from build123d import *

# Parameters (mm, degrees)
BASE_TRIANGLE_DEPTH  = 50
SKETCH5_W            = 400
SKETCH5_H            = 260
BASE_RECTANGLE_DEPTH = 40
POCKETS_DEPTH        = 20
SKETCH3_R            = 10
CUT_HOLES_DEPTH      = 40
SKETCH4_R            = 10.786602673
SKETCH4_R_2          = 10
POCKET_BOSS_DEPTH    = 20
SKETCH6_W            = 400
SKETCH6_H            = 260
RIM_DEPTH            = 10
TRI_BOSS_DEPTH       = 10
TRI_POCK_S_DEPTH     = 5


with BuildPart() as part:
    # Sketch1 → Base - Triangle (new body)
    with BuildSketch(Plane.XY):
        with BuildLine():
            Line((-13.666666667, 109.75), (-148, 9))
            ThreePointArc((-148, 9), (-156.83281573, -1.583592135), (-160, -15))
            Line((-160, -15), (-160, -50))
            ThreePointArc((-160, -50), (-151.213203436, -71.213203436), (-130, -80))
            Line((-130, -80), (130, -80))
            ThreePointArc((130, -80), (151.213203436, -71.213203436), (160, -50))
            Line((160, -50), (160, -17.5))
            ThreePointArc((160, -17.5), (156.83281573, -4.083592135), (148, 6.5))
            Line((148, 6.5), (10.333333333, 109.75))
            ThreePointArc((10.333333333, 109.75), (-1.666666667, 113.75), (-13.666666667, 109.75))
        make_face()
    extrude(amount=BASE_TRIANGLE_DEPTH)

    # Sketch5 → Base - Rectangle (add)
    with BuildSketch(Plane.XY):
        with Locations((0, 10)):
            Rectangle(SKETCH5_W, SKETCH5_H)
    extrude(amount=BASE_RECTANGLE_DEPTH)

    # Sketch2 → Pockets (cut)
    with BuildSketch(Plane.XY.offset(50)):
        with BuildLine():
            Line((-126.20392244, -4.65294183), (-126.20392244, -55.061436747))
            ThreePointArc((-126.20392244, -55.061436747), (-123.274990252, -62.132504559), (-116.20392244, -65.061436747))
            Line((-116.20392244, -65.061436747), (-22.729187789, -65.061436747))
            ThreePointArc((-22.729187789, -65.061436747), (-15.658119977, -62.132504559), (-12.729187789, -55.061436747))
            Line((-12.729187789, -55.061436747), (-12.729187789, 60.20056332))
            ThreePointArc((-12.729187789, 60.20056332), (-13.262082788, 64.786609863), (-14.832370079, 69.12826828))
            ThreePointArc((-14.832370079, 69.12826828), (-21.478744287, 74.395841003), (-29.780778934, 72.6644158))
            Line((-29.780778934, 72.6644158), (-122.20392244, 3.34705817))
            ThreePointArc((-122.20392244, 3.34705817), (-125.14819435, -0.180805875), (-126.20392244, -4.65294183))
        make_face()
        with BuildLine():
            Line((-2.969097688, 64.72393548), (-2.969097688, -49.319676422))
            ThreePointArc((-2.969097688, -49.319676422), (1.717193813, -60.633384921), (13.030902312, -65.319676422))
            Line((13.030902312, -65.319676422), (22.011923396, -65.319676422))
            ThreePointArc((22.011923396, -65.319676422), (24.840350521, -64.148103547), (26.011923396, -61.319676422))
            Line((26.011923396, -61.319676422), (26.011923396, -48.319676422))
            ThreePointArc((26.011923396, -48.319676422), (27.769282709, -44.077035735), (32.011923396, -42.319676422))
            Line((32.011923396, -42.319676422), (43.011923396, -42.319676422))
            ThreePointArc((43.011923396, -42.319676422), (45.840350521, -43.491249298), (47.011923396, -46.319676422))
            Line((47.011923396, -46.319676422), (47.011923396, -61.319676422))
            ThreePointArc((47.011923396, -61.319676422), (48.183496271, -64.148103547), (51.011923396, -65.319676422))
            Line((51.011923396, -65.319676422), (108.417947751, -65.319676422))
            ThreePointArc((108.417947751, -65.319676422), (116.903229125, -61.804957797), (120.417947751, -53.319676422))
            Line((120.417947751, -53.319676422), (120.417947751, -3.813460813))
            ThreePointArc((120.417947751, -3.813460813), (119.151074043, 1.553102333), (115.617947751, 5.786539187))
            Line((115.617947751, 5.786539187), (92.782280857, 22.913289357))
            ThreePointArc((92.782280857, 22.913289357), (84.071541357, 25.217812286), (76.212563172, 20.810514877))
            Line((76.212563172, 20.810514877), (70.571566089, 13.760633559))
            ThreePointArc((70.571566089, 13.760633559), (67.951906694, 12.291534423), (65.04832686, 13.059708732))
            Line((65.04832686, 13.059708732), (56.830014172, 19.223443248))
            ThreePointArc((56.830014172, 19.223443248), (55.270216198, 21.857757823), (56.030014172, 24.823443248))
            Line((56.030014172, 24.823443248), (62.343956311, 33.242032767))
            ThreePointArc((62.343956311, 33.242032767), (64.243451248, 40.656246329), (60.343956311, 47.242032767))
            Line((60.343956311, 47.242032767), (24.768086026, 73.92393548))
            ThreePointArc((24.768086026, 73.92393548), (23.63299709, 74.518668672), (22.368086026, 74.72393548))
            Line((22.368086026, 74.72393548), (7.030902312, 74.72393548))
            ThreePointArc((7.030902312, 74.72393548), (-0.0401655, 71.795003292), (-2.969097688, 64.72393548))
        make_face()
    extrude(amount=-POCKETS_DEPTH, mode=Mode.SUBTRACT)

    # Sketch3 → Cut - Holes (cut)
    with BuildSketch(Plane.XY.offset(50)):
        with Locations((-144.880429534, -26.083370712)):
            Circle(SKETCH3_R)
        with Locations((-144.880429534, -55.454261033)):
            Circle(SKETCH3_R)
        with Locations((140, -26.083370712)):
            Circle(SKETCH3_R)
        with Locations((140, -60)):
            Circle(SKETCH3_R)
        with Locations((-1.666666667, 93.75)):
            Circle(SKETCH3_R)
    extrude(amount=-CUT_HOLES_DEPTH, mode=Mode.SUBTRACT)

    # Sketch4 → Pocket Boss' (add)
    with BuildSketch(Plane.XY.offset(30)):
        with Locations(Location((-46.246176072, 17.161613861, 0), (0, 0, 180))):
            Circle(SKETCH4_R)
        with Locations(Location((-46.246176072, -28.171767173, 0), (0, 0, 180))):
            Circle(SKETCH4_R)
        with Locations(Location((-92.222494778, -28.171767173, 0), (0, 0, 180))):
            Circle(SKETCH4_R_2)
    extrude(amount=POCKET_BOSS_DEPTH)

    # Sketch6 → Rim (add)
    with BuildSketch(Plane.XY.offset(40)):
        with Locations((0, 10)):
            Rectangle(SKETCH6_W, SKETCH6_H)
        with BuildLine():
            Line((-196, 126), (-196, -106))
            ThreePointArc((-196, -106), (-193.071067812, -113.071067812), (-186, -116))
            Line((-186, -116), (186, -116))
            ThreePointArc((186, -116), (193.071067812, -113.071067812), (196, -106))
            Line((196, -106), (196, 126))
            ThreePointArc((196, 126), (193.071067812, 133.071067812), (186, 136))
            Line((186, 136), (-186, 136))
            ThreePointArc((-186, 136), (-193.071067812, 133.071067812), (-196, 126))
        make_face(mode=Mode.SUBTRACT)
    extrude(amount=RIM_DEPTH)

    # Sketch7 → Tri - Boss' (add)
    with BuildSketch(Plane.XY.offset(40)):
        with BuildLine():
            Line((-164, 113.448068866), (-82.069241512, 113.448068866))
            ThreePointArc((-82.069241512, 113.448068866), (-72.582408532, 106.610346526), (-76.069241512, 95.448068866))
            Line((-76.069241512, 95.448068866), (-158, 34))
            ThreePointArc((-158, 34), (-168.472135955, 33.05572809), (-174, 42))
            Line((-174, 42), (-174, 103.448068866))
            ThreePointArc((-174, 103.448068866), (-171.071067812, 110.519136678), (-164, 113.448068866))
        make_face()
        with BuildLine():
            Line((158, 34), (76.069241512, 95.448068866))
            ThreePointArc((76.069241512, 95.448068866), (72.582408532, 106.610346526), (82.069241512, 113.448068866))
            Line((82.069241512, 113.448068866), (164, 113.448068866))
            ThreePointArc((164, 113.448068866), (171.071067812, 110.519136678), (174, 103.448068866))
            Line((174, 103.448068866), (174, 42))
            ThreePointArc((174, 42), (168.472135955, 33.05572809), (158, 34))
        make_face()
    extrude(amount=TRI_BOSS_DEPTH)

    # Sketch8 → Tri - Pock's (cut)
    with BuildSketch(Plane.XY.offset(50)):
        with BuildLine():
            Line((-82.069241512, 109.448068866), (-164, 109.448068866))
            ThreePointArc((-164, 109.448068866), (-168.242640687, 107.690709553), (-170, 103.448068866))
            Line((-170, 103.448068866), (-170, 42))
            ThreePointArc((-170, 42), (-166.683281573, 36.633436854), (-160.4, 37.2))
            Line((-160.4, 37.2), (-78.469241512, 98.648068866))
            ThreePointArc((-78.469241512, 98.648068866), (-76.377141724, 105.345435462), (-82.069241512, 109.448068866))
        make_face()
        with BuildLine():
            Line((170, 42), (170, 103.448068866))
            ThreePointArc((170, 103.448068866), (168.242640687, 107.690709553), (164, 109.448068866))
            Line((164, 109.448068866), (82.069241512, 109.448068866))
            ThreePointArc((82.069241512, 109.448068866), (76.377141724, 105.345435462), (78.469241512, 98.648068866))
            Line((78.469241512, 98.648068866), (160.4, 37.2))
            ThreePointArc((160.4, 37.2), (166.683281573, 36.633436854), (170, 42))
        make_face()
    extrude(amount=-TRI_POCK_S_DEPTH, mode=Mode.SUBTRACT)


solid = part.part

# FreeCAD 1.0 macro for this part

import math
import FreeCAD as App
import Part
import Sketcher

V = App.Vector
Q = App.Units.Quantity


def add_polygon(sketch, points):
    """Adds a closed chain of lines whose ends are joined by coincident constraints."""
    first, n = sketch.GeometryCount, len(points)
    for a, b in zip(points, points[1:] + points[:1]):
        sketch.addGeometry(Part.LineSegment(App.Vector(*a, 0), App.Vector(*b, 0)), False)
    for i in range(n):
        sketch.addConstraint(Sketcher.Constraint("Coincident", first + i, 2, first + (i + 1) % n, 1))

doc = App.newDocument("Part")
params = doc.addObject("Spreadsheet::Sheet", "Params")
for row, (alias, value) in enumerate([
    ("sketch1_radius", "30 mm"),
    ("sketch1_radius2", "20 mm"),
    ("sketch1_width", "260 mm"),
    ("sketch1_height", "35 mm"),
    ("sketch1_height2", "32.5 mm"),
    ("pad1_length", "50 mm"),
    ("sketch2_width", "400 mm"),
    ("sketch2_height", "260 mm"),
    ("pad2_length", "40 mm"),
    ("sketch3_radius", "10 mm"),
    ("sketch3_radius2", "20 mm"),
    ("sketch3_radius3", "16 mm"),
    ("sketch3_radius4", "4 mm"),
    ("sketch3_radius5", "6 mm"),
    ("pocket1_length", "20 mm"),
    ("sketch4_diameter", "20 mm"),
    ("pocket2_length", "40 mm"),
    ("sketch5_diameter", "20 mm"),
    ("pad3_length", "20 mm"),
    ("sketch6_radius", "10 mm"),
    ("sketch6_width", "400 mm"),
    ("sketch6_width2", "372 mm"),
    ("sketch6_height", "260 mm"),
    ("sketch6_height2", "232 mm"),
    ("pad4_length", "10 mm"),
    ("sketch7_radius", "10 mm"),
    ("pad5_length", "10 mm"),
    ("sketch8_radius", "6 mm"),
    ("pocket3_length", "5 mm"),
], start=1):
    params.set(f"A{row}", alias)
    params.set(f"B{row}", "=" + value)
    params.setAlias(f"B{row}", alias)

body = doc.addObject("PartDesign::Body", "Body")

sketch1 = body.newObject("Sketcher::SketchObject", "Sketch")
sketch1.AttachmentSupport = (doc.getObject("XY_Plane"), [""])
sketch1.MapMode = "FlatFace"
sketch1.addGeometry(Part.LineSegment(V(-14, 110, 0), V(-148, 9, 0)), False)
sketch1.addGeometry(Part.ArcOfCircle(Part.Circle(V(-130, -15, 0), V(0, 0, 1), 30), math.radians(127), math.radians(180)), False)
sketch1.addGeometry(Part.LineSegment(V(-160, -15, 0), V(-160, -50, 0)), False)
sketch1.addGeometry(Part.ArcOfCircle(Part.Circle(V(-130, -50, 0), V(0, 0, 1), 30), math.radians(180), math.radians(270)), False)
sketch1.addGeometry(Part.LineSegment(V(-130, -80, 0), V(130, -80, 0)), False)
sketch1.addGeometry(Part.ArcOfCircle(Part.Circle(V(130, -50, 0), V(0, 0, 1), 30), math.radians(-90), math.radians(0)), False)
sketch1.addGeometry(Part.LineSegment(V(160, -50, 0), V(160, -18, 0)), False)
sketch1.addGeometry(Part.ArcOfCircle(Part.Circle(V(130, -18, 0), V(0, 0, 1), 30), math.radians(0), math.radians(53)), False)
sketch1.addGeometry(Part.LineSegment(V(148, 6, 0), V(10, 110, 0)), False)
sketch1.addGeometry(Part.ArcOfCircle(Part.Circle(V(-2, 94, 0), V(0, 0, 1), 20), math.radians(53), math.radians(127)), False)
sketch1.addConstraint(Sketcher.Constraint("Tangent", 0, 2, 1, 1))
sketch1.addConstraint(Sketcher.Constraint("Tangent", 1, 2, 2, 1))
sketch1.addConstraint(Sketcher.Constraint("Tangent", 2, 2, 3, 1))
sketch1.addConstraint(Sketcher.Constraint("Tangent", 3, 2, 4, 1))
sketch1.addConstraint(Sketcher.Constraint("Tangent", 4, 2, 5, 1))
sketch1.addConstraint(Sketcher.Constraint("Tangent", 5, 2, 6, 1))
sketch1.addConstraint(Sketcher.Constraint("Tangent", 6, 2, 7, 1))
sketch1.addConstraint(Sketcher.Constraint("Tangent", 7, 2, 8, 1))
sketch1.addConstraint(Sketcher.Constraint("Tangent", 8, 2, 9, 1))
sketch1.addConstraint(Sketcher.Constraint("Tangent", 9, 2, 0, 1))
sketch1.addConstraint(Sketcher.Constraint("Vertical", 2))
sketch1.addConstraint(Sketcher.Constraint("Horizontal", 4))
sketch1.addConstraint(Sketcher.Constraint("Vertical", 6))
sketch1.addConstraint(Sketcher.Constraint("Equal", 1, 3))
sketch1.addConstraint(Sketcher.Constraint("Equal", 3, 5))
sketch1.addConstraint(Sketcher.Constraint("Equal", 5, 7))
sketch1.addConstraint(Sketcher.Constraint("Horizontal", 8, 2, 9, 2))
sketch1.addConstraint(Sketcher.Constraint("Radius", 1, Q("30 mm")))
sketch1.addConstraint(Sketcher.Constraint("Radius", 9, Q("20 mm")))
sketch1.addConstraint(Sketcher.Constraint("DistanceX", 4, 1, 4, 2, Q("260 mm")))
sketch1.addConstraint(Sketcher.Constraint("DistanceY", 2, 2, 2, 1, Q("35 mm")))
sketch1.addConstraint(Sketcher.Constraint("DistanceY", 6, 1, 6, 2, Q("32.5 mm")))
sketch1.addConstraint(Sketcher.Constraint("DistanceX", 1, 3, -1, 1, Q("130 mm")))
sketch1.addConstraint(Sketcher.Constraint("DistanceY", 1, 3, -1, 1, Q("15 mm")))
sketch1.addConstraint(Sketcher.Constraint("DistanceX", 0, 2, -1, 1, Q("148 mm")))
sketch1.setExpression("Constraints[17]", "Params.sketch1_radius")
sketch1.setExpression("Constraints[18]", "Params.sketch1_radius2")
sketch1.setExpression("Constraints[19]", "Params.sketch1_width")
sketch1.setExpression("Constraints[20]", "Params.sketch1_height")
sketch1.setExpression("Constraints[21]", "Params.sketch1_height2")
pad1 = body.newObject("PartDesign::Pad", "Pad")
pad1.Profile = sketch1
pad1.setExpression("Length", "Params.pad1_length")

sketch2 = body.newObject("Sketcher::SketchObject", "Sketch001")
sketch2.AttachmentSupport = (doc.getObject("XY_Plane"), [""])
sketch2.MapMode = "FlatFace"
add_polygon(sketch2, [(-200, 140), (-200, -120), (200, -120), (200, 140)])
sketch2.addConstraint(Sketcher.Constraint("Vertical", 0))
sketch2.addConstraint(Sketcher.Constraint("Horizontal", 1))
sketch2.addConstraint(Sketcher.Constraint("Vertical", 2))
sketch2.addConstraint(Sketcher.Constraint("Horizontal", 3))
sketch2.addConstraint(Sketcher.Constraint("DistanceX", 1, 1, 1, 2, Q("400 mm")))
sketch2.addConstraint(Sketcher.Constraint("DistanceY", 0, 2, 0, 1, Q("260 mm")))
sketch2.addConstraint(Sketcher.Constraint("DistanceX", 0, 2, -1, 1, Q("200 mm")))
sketch2.addConstraint(Sketcher.Constraint("DistanceY", 0, 2, -1, 1, Q("120 mm")))
sketch2.setExpression("Constraints[8]", "Params.sketch2_width")
sketch2.setExpression("Constraints[9]", "Params.sketch2_height")
pad2 = body.newObject("PartDesign::Pad", "Pad001")
pad2.Profile = sketch2
pad2.setExpression("Length", "Params.pad2_length")

sketch3 = body.newObject("Sketcher::SketchObject", "Sketch002")
sketch3.AttachmentSupport = (doc.getObject("XY_Plane"), [""])
sketch3.MapMode = "FlatFace"
sketch3.AttachmentOffset = App.Placement(V(0, 0, 50), App.Rotation())
sketch3.addGeometry(Part.LineSegment(V(-126.2, -4.7, 0), V(-126.2, -55.1, 0)), False)
sketch3.addGeometry(Part.ArcOfCircle(Part.Circle(V(-116.2, -55.1, 0), V(0, 0, 1), 10), math.radians(180), math.radians(270)), False)
sketch3.addGeometry(Part.LineSegment(V(-116.2, -65.1, 0), V(-22.7, -65.1, 0)), False)
sketch3.addGeometry(Part.ArcOfCircle(Part.Circle(V(-22.7, -55.1, 0), V(0, 0, 1), 10), math.radians(-90), math.radians(0)), False)
sketch3.addGeometry(Part.LineSegment(V(-12.7, -55.1, 0), V(-12.7, 60.2, 0)), False)
sketch3.addGeometry(Part.ArcOfCircle(Part.Circle(V(-32.7, 60.2, 0), V(0, 0, 1), 20), math.radians(0), math.radians(27)), False)
sketch3.addGeometry(Part.ArcOfCircle(Part.Circle(V(-23.8, 64.7, 0), V(0, 0, 1), 10), math.radians(27), math.radians(127)), False)
sketch3.addGeometry(Part.LineSegment(V(-29.8, 72.7, 0), V(-122.2, 3.3, 0)), False)
sketch3.addGeometry(Part.ArcOfCircle(Part.Circle(V(-116.2, -4.7, 0), V(0, 0, 1), 10), math.radians(127), math.radians(180)), False)
sketch3.addGeometry(Part.LineSegment(V(-3, 64.7, 0), V(-3, -49.3, 0)), False)
sketch3.addGeometry(Part.ArcOfCircle(Part.Circle(V(13, -49.3, 0), V(0, 0, 1), 16), math.radians(180), math.radians(270)), False)
sketch3.addGeometry(Part.LineSegment(V(13, -65.3, 0), V(22, -65.3, 0)), False)
sketch3.addGeometry(Part.ArcOfCircle(Part.Circle(V(22, -61.3, 0), V(0, 0, 1), 4), math.radians(-90), math.radians(0)), False)
sketch3.addGeometry(Part.LineSegment(V(26, -61.3, 0), V(26, -48.3, 0)), False)
sketch3.addGeometry(Part.ArcOfCircle(Part.Circle(V(32, -48.3, 0), V(0, 0, 1), 6), math.radians(90), math.radians(180)), False)
sketch3.addGeometry(Part.LineSegment(V(32, -42.3, 0), V(43, -42.3, 0)), False)
sketch3.addGeometry(Part.ArcOfCircle(Part.Circle(V(43, -46.3, 0), V(0, 0, 1), 4), math.radians(0), math.radians(90)), False)
sketch3.addGeometry(Part.LineSegment(V(47, -46.3, 0), V(47, -61.3, 0)), False)
sketch3.addGeometry(Part.ArcOfCircle(Part.Circle(V(51, -61.3, 0), V(0, 0, 1), 4), math.radians(180), math.radians(270)), False)
sketch3.addGeometry(Part.LineSegment(V(51, -65.3, 0), V(108.4, -65.3, 0)), False)
sketch3.addGeometry(Part.ArcOfCircle(Part.Circle(V(108.4, -53.3, 0), V(0, 0, 1), 12), math.radians(-90), math.radians(0)), False)
sketch3.addGeometry(Part.LineSegment(V(120.4, -53.3, 0), V(120.4, -3.8, 0)), False)
sketch3.addGeometry(Part.ArcOfCircle(Part.Circle(V(108.4, -3.8, 0), V(0, 0, 1), 12), math.radians(0), math.radians(53)), False)
sketch3.addGeometry(Part.LineSegment(V(115.6, 5.8, 0), V(92.8, 22.9, 0)), False)
sketch3.addGeometry(Part.ArcOfCircle(Part.Circle(V(85.6, 13.3, 0), V(0, 0, 1), 12), math.radians(53), math.radians(141)), False)
sketch3.addGeometry(Part.LineSegment(V(76.2, 20.8, 0), V(70.6, 13.8, 0)), False)
sketch3.addGeometry(Part.ArcOfCircle(Part.Circle(V(67.4, 16.3, 0), V(0, 0, 1), 4), math.radians(-127), math.radians(-39)), False)
sketch3.addGeometry(Part.LineSegment(V(65, 13.1, 0), V(56.8, 19.2, 0)), False)
sketch3.addGeometry(Part.ArcOfCircle(Part.Circle(V(59.2, 22.4, 0), V(0, 0, 1), 4), math.radians(143), math.radians(233)), False)
sketch3.addGeometry(Part.LineSegment(V(56, 24.8, 0), V(62.3, 33.2, 0)), False)
sketch3.addGeometry(Part.ArcOfCircle(Part.Circle(V(54.3, 39.2, 0), V(0, 0, 1), 10), math.radians(-37), math.radians(53)), False)
sketch3.addGeometry(Part.LineSegment(V(60.3, 47.2, 0), V(24.8, 73.9, 0)), False)
sketch3.addGeometry(Part.ArcOfCircle(Part.Circle(V(22.4, 70.7, 0), V(0, 0, 1), 4), math.radians(53), math.radians(90)), False)
sketch3.addGeometry(Part.LineSegment(V(22.4, 74.7, 0), V(7, 74.7, 0)), False)
sketch3.addGeometry(Part.ArcOfCircle(Part.Circle(V(7, 64.7, 0), V(0, 0, 1), 10), math.radians(90), math.radians(180)), False)
sketch3.addConstraint(Sketcher.Constraint("Tangent", 0, 2, 1, 1))
sketch3.addConstraint(Sketcher.Constraint("Tangent", 1, 2, 2, 1))
sketch3.addConstraint(Sketcher.Constraint("Tangent", 2, 2, 3, 1))
sketch3.addConstraint(Sketcher.Constraint("Tangent", 3, 2, 4, 1))
sketch3.addConstraint(Sketcher.Constraint("Tangent", 4, 2, 5, 1))
sketch3.addConstraint(Sketcher.Constraint("Tangent", 5, 2, 6, 1))
sketch3.addConstraint(Sketcher.Constraint("Tangent", 6, 2, 7, 1))
sketch3.addConstraint(Sketcher.Constraint("Tangent", 7, 2, 8, 1))
sketch3.addConstraint(Sketcher.Constraint("Tangent", 8, 2, 0, 1))
sketch3.addConstraint(Sketcher.Constraint("Tangent", 9, 2, 10, 1))
sketch3.addConstraint(Sketcher.Constraint("Tangent", 10, 2, 11, 1))
sketch3.addConstraint(Sketcher.Constraint("Tangent", 11, 2, 12, 1))
sketch3.addConstraint(Sketcher.Constraint("Tangent", 12, 2, 13, 1))
sketch3.addConstraint(Sketcher.Constraint("Tangent", 13, 2, 14, 2))
sketch3.addConstraint(Sketcher.Constraint("Tangent", 14, 1, 15, 1))
sketch3.addConstraint(Sketcher.Constraint("Tangent", 15, 2, 16, 2))
sketch3.addConstraint(Sketcher.Constraint("Tangent", 16, 1, 17, 1))
sketch3.addConstraint(Sketcher.Constraint("Tangent", 17, 2, 18, 1))
sketch3.addConstraint(Sketcher.Constraint("Tangent", 18, 2, 19, 1))
sketch3.addConstraint(Sketcher.Constraint("Tangent", 19, 2, 20, 1))
sketch3.addConstraint(Sketcher.Constraint("Tangent", 20, 2, 21, 1))
sketch3.addConstraint(Sketcher.Constraint("Tangent", 21, 2, 22, 1))
sketch3.addConstraint(Sketcher.Constraint("Tangent", 22, 2, 23, 1))
sketch3.addConstraint(Sketcher.Constraint("Tangent", 23, 2, 24, 1))
sketch3.addConstraint(Sketcher.Constraint("Tangent", 24, 2, 25, 1))
sketch3.addConstraint(Sketcher.Constraint("Tangent", 25, 2, 26, 2))
sketch3.addConstraint(Sketcher.Constraint("Tangent", 26, 1, 27, 1))
sketch3.addConstraint(Sketcher.Constraint("Tangent", 27, 2, 28, 2))
sketch3.addConstraint(Sketcher.Constraint("Tangent", 28, 1, 29, 1))
sketch3.addConstraint(Sketcher.Constraint("Tangent", 29, 2, 30, 1))
sketch3.addConstraint(Sketcher.Constraint("Tangent", 30, 2, 31, 1))
sketch3.addConstraint(Sketcher.Constraint("Tangent", 31, 2, 32, 1))
sketch3.addConstraint(Sketcher.Constraint("Tangent", 32, 2, 33, 1))
sketch3.addConstraint(Sketcher.Constraint("Tangent", 33, 2, 34, 1))
sketch3.addConstraint(Sketcher.Constraint("Tangent", 34, 2, 9, 1))
sketch3.addConstraint(Sketcher.Constraint("Vertical", 0))
sketch3.addConstraint(Sketcher.Constraint("Horizontal", 2))
sketch3.addConstraint(Sketcher.Constraint("Vertical", 4))
sketch3.addConstraint(Sketcher.Constraint("Vertical", 9))
sketch3.addConstraint(Sketcher.Constraint("Horizontal", 11))
sketch3.addConstraint(Sketcher.Constraint("Vertical", 13))
sketch3.addConstraint(Sketcher.Constraint("Horizontal", 15))
sketch3.addConstraint(Sketcher.Constraint("Vertical", 17))
sketch3.addConstraint(Sketcher.Constraint("Horizontal", 19))
sketch3.addConstraint(Sketcher.Constraint("Vertical", 21))
sketch3.addConstraint(Sketcher.Constraint("Horizontal", 33))
sketch3.addConstraint(Sketcher.Constraint("Equal", 1, 3))
sketch3.addConstraint(Sketcher.Constraint("Equal", 3, 6))
sketch3.addConstraint(Sketcher.Constraint("Equal", 6, 8))
sketch3.addConstraint(Sketcher.Constraint("Equal", 12, 16))
sketch3.addConstraint(Sketcher.Constraint("Equal", 16, 18))
sketch3.addConstraint(Sketcher.Constraint("Equal", 20, 22))
sketch3.addConstraint(Sketcher.Constraint("Equal", 22, 24))
sketch3.addConstraint(Sketcher.Constraint("Equal", 18, 26))
sketch3.addConstraint(Sketcher.Constraint("Equal", 26, 28))
sketch3.addConstraint(Sketcher.Constraint("Equal", 8, 30))
sketch3.addConstraint(Sketcher.Constraint("Equal", 28, 32))
sketch3.addConstraint(Sketcher.Constraint("Equal", 30, 34))
sketch3.addConstraint(Sketcher.Constraint("Parallel", 23, 27))
sketch3.addConstraint(Sketcher.Constraint("Perpendicular", 27, 29))
sketch3.addConstraint(Sketcher.Constraint("Perpendicular", 29, 31))
sketch3.addConstraint(Sketcher.Constraint("Horizontal", 12, 3, 18, 3))
sketch3.addConstraint(Sketcher.Constraint("Radius", 1, Q("10 mm")))
sketch3.addConstraint(Sketcher.Constraint("Radius", 5, Q("20 mm")))
sketch3.addConstraint(Sketcher.Constraint("Radius", 10, Q("16 mm")))
sketch3.addConstraint(Sketcher.Constraint("Radius", 12, Q("4 mm")))
sketch3.addConstraint(Sketcher.Constraint("Radius", 14, Q("6 mm")))
sketch3.addConstraint(Sketcher.Constraint("Radius", 20, Q("12 mm")))
sketch3.addConstraint(Sketcher.Constraint("DistanceX", 15, 1, 15, 2, Q("11 mm")))
sketch3.addConstraint(Sketcher.Constraint("DistanceY", 13, 1, 13, 2, Q("13 mm")))
sketch3.addConstraint(Sketcher.Constraint("DistanceX", 6, 2, 6, 3, Q("6 mm")))
sketch3.addConstraint(Sketcher.Constraint("DistanceX", 30, 3, 29, 2, Q("8 mm")))
sketch3.addConstraint(Sketcher.Constraint("DistanceY", 4, 1, 4, 2, Q("115.262 mm")))
sketch3.addConstraint(Sketcher.Constraint("DistanceX", 11, 1, 11, 2, Q("8.981021 mm")))
sketch3.addConstraint(Sketcher.Constraint("DistanceY", 9, 2, 9, 1, Q("114.043612 mm")))
sketch3.addConstraint(Sketcher.Constraint("Distance", 7, Q("115.528929 mm")))
sketch3.addConstraint(Sketcher.Constraint("Distance", 27, Q("10.272891 mm")))
sketch3.addConstraint(Sketcher.Constraint("DistanceX", 2, 1, 2, 2, Q("93.474735 mm")))
sketch3.addConstraint(Sketcher.Constraint("DistanceX", 19, 1, 19, 2, Q("57.406024 mm")))
sketch3.addConstraint(Sketcher.Constraint("DistanceX", 33, 2, 33, 1, Q("15.337184 mm")))
sketch3.addConstraint(Sketcher.Constraint("DistanceY", 21, 1, 21, 2, Q("49.506216 mm")))
sketch3.addConstraint(Sketcher.Constraint("DistanceX", 6, 3, -1, 1, Q("23.780779 mm")))
sketch3.addConstraint(Sketcher.Constraint("DistanceY", 8, 3, -1, 1, Q("4.652942 mm")))
sketch3.addConstraint(Sketcher.Constraint("DistanceY", 22, 3, -1, 1, Q("3.813461 mm")))
sketch3.addConstraint(Sketcher.Constraint("DistanceX", -1, 1, 24, 3, Q("85.582281 mm")))
sketch3.addConstraint(Sketcher.Constraint("DistanceY", -1, 1, 24, 3, Q("13.313289 mm")))
sketch3.addConstraint(Sketcher.Constraint("DistanceY", -1, 1, 26, 3, Q("16.259709 mm")))
sketch3.addConstraint(Sketcher.Constraint("DistanceX", 26, 3, 22, 3, Q("40.969621 mm")))
sketch3.setExpression("Constraints[62]", "Params.sketch3_radius")
sketch3.setExpression("Constraints[63]", "Params.sketch3_radius2")
sketch3.setExpression("Constraints[64]", "Params.sketch3_radius3")
sketch3.setExpression("Constraints[65]", "Params.sketch3_radius4")
sketch3.setExpression("Constraints[66]", "Params.sketch3_radius5")
pocket1 = body.newObject("PartDesign::Pocket", "Pocket")
pocket1.Profile = sketch3
pocket1.setExpression("Length", "Params.pocket1_length")

sketch4 = body.newObject("Sketcher::SketchObject", "Sketch003")
sketch4.AttachmentSupport = (doc.getObject("XY_Plane"), [""])
sketch4.MapMode = "FlatFace"
sketch4.AttachmentOffset = App.Placement(V(0, 0, 50), App.Rotation())
sketch4.addGeometry(Part.Circle(V(-145, -26, 0), V(0, 0, 1), 10), False)
sketch4.addGeometry(Part.Circle(V(-145, -55, 0), V(0, 0, 1), 10), False)
sketch4.addGeometry(Part.Circle(V(140, -26, 0), V(0, 0, 1), 10), False)
sketch4.addGeometry(Part.Circle(V(140, -60, 0), V(0, 0, 1), 10), False)
sketch4.addGeometry(Part.Circle(V(-2, 94, 0), V(0, 0, 1), 10), False)
sketch4.addConstraint(Sketcher.Constraint("Equal", 0, 1))
sketch4.addConstraint(Sketcher.Constraint("Equal", 1, 2))
sketch4.addConstraint(Sketcher.Constraint("Equal", 2, 3))
sketch4.addConstraint(Sketcher.Constraint("Equal", 3, 4))
sketch4.addConstraint(Sketcher.Constraint("Horizontal", 0, 3, 2, 3))
sketch4.addConstraint(Sketcher.Constraint("Vertical", 0, 3, 1, 3))
sketch4.addConstraint(Sketcher.Constraint("Vertical", 2, 3, 3, 3))
sketch4.addConstraint(Sketcher.Constraint("Diameter", 0, Q("20 mm")))
sketch4.addConstraint(Sketcher.Constraint("DistanceX", -1, 1, 2, 3, Q("140 mm")))
sketch4.addConstraint(Sketcher.Constraint("DistanceY", 3, 3, -1, 1, Q("60 mm")))
sketch4.addConstraint(Sketcher.Constraint("DistanceY", -1, 1, 4, 3, Q("93.75 mm")))
sketch4.addConstraint(Sketcher.Constraint("DistanceX", 0, 3, -1, 1, Q("144.88043 mm")))
sketch4.addConstraint(Sketcher.Constraint("DistanceY", 0, 3, -1, 1, Q("26.083371 mm")))
sketch4.addConstraint(Sketcher.Constraint("DistanceY", 1, 3, -1, 1, Q("55.454261 mm")))
sketch4.addConstraint(Sketcher.Constraint("DistanceX", 4, 3, -1, 1, Q("1.666667 mm")))
sketch4.setExpression("Constraints[7]", "Params.sketch4_diameter")
pocket2 = body.newObject("PartDesign::Pocket", "Pocket001")
pocket2.Profile = sketch4
pocket2.setExpression("Length", "Params.pocket2_length")

sketch5 = body.newObject("Sketcher::SketchObject", "Sketch004")
sketch5.AttachmentSupport = (doc.getObject("XY_Plane"), [""])
sketch5.MapMode = "FlatFace"
sketch5.AttachmentOffset = App.Placement(V(0, 0, 30), App.Rotation())
sketch5.addGeometry(Part.Circle(V(-46, 17, 0), V(0, 0, 1), 11), False)
sketch5.addGeometry(Part.Circle(V(-46, -28, 0), V(0, 0, 1), 11), False)
sketch5.addGeometry(Part.Circle(V(-92, -28, 0), V(0, 0, 1), 10), False)
sketch5.addConstraint(Sketcher.Constraint("Equal", 0, 1))
sketch5.addConstraint(Sketcher.Constraint("Horizontal", 1, 3, 2, 3))
sketch5.addConstraint(Sketcher.Constraint("Vertical", 0, 3, 1, 3))
sketch5.addConstraint(Sketcher.Constraint("Diameter", 2, Q("20 mm")))
sketch5.addConstraint(Sketcher.Constraint("Diameter", 0, Q("21.573205 mm")))
sketch5.addConstraint(Sketcher.Constraint("DistanceY", 1, 3, 0, 3, Q("45.333381 mm")))
sketch5.addConstraint(Sketcher.Constraint("DistanceX", 2, 3, 1, 3, Q("45.976319 mm")))
sketch5.addConstraint(Sketcher.Constraint("DistanceX", 0, 3, -1, 1, Q("46.246176 mm")))
sketch5.addConstraint(Sketcher.Constraint("DistanceY", -1, 1, 0, 3, Q("17.161614 mm")))
sketch5.setExpression("Constraints[3]", "Params.sketch5_diameter")
pad3 = body.newObject("PartDesign::Pad", "Pad002")
pad3.Profile = sketch5
pad3.setExpression("Length", "Params.pad3_length")

sketch6 = body.newObject("Sketcher::SketchObject", "Sketch005")
sketch6.AttachmentSupport = (doc.getObject("XY_Plane"), [""])
sketch6.MapMode = "FlatFace"
sketch6.AttachmentOffset = App.Placement(V(0, 0, 40), App.Rotation())
add_polygon(sketch6, [(-200, 140), (-200, -120), (200, -120), (200, 140)])
sketch6.addGeometry(Part.LineSegment(V(-196, -106, 0), V(-196, 126, 0)), False)
sketch6.addGeometry(Part.ArcOfCircle(Part.Circle(V(-186, 126, 0), V(0, 0, 1), 10), math.radians(90), math.radians(180)), False)
sketch6.addGeometry(Part.LineSegment(V(-186, 136, 0), V(186, 136, 0)), False)
sketch6.addGeometry(Part.ArcOfCircle(Part.Circle(V(186, 126, 0), V(0, 0, 1), 10), math.radians(0), math.radians(90)), False)
sketch6.addGeometry(Part.LineSegment(V(196, 126, 0), V(196, -106, 0)), False)
sketch6.addGeometry(Part.ArcOfCircle(Part.Circle(V(186, -106, 0), V(0, 0, 1), 10), math.radians(-90), math.radians(0)), False)
sketch6.addGeometry(Part.LineSegment(V(186, -116, 0), V(-186, -116, 0)), False)
sketch6.addGeometry(Part.ArcOfCircle(Part.Circle(V(-186, -106, 0), V(0, 0, 1), 10), math.radians(180), math.radians(270)), False)
sketch6.addConstraint(Sketcher.Constraint("Tangent", 4, 2, 5, 2))
sketch6.addConstraint(Sketcher.Constraint("Tangent", 5, 1, 6, 1))
sketch6.addConstraint(Sketcher.Constraint("Tangent", 6, 2, 7, 2))
sketch6.addConstraint(Sketcher.Constraint("Tangent", 7, 1, 8, 1))
sketch6.addConstraint(Sketcher.Constraint("Tangent", 8, 2, 9, 2))
sketch6.addConstraint(Sketcher.Constraint("Tangent", 9, 1, 10, 1))
sketch6.addConstraint(Sketcher.Constraint("Tangent", 10, 2, 11, 2))
sketch6.addConstraint(Sketcher.Constraint("Tangent", 11, 1, 4, 1))
sketch6.addConstraint(Sketcher.Constraint("Vertical", 0))
sketch6.addConstraint(Sketcher.Constraint("Horizontal", 1))
sketch6.addConstraint(Sketcher.Constraint("Vertical", 2))
sketch6.addConstraint(Sketcher.Constraint("Horizontal", 3))
sketch6.addConstraint(Sketcher.Constraint("Vertical", 4))
sketch6.addConstraint(Sketcher.Constraint("Horizontal", 6))
sketch6.addConstraint(Sketcher.Constraint("Vertical", 8))
sketch6.addConstraint(Sketcher.Constraint("Horizontal", 10))
sketch6.addConstraint(Sketcher.Constraint("Equal", 5, 7))
sketch6.addConstraint(Sketcher.Constraint("Equal", 7, 9))
sketch6.addConstraint(Sketcher.Constraint("Equal", 9, 11))
sketch6.addConstraint(Sketcher.Constraint("Radius", 5, Q("10 mm")))
sketch6.addConstraint(Sketcher.Constraint("DistanceX", 1, 1, 1, 2, Q("400 mm")))
sketch6.addConstraint(Sketcher.Constraint("DistanceX", 6, 1, 6, 2, Q("372 mm")))
sketch6.addConstraint(Sketcher.Constraint("DistanceY", 0, 2, 0, 1, Q("260 mm")))
sketch6.addConstraint(Sketcher.Constraint("DistanceY", 4, 1, 4, 2, Q("232 mm")))
sketch6.addConstraint(Sketcher.Constraint("DistanceX", 5, 3, -1, 1, Q("186 mm")))
sketch6.addConstraint(Sketcher.Constraint("DistanceY", -1, 1, 5, 3, Q("126 mm")))
sketch6.addConstraint(Sketcher.Constraint("DistanceX", 0, 2, -1, 1, Q("200 mm")))
sketch6.addConstraint(Sketcher.Constraint("DistanceY", 0, 2, -1, 1, Q("120 mm")))
sketch6.setExpression("Constraints[23]", "Params.sketch6_radius")
sketch6.setExpression("Constraints[24]", "Params.sketch6_width")
sketch6.setExpression("Constraints[25]", "Params.sketch6_width2")
sketch6.setExpression("Constraints[26]", "Params.sketch6_height")
sketch6.setExpression("Constraints[27]", "Params.sketch6_height2")
pad4 = body.newObject("PartDesign::Pad", "Pad003")
pad4.Profile = sketch6
pad4.setExpression("Length", "Params.pad4_length")

sketch7 = body.newObject("Sketcher::SketchObject", "Sketch006")
sketch7.AttachmentSupport = (doc.getObject("XY_Plane"), [""])
sketch7.MapMode = "FlatFace"
sketch7.AttachmentOffset = App.Placement(V(0, 0, 40), App.Rotation())
sketch7.addGeometry(Part.LineSegment(V(-82, 113, 0), V(-164, 113, 0)), False)
sketch7.addGeometry(Part.ArcOfCircle(Part.Circle(V(-164, 103, 0), V(0, 0, 1), 10), math.radians(90), math.radians(180)), False)
sketch7.addGeometry(Part.LineSegment(V(-174, 103, 0), V(-174, 42, 0)), False)
sketch7.addGeometry(Part.ArcOfCircle(Part.Circle(V(-164, 42, 0), V(0, 0, 1), 10), math.radians(180), math.radians(307)), False)
sketch7.addGeometry(Part.LineSegment(V(-158, 34, 0), V(-76, 95, 0)), False)
sketch7.addGeometry(Part.ArcOfCircle(Part.Circle(V(-82, 103, 0), V(0, 0, 1), 10), math.radians(-53), math.radians(90)), False)
sketch7.addGeometry(Part.LineSegment(V(76, 95, 0), V(158, 34, 0)), False)
sketch7.addGeometry(Part.ArcOfCircle(Part.Circle(V(164, 42, 0), V(0, 0, 1), 10), math.radians(-127), math.radians(0)), False)
sketch7.addGeometry(Part.LineSegment(V(174, 42, 0), V(174, 103, 0)), False)
sketch7.addGeometry(Part.ArcOfCircle(Part.Circle(V(164, 103, 0), V(0, 0, 1), 10), math.radians(0), math.radians(90)), False)
sketch7.addGeometry(Part.LineSegment(V(164, 113, 0), V(82, 113, 0)), False)
sketch7.addGeometry(Part.ArcOfCircle(Part.Circle(V(82, 103, 0), V(0, 0, 1), 10), math.radians(90), math.radians(233)), False)
sketch7.addConstraint(Sketcher.Constraint("Tangent", 0, 2, 1, 1))
sketch7.addConstraint(Sketcher.Constraint("Tangent", 1, 2, 2, 1))
sketch7.addConstraint(Sketcher.Constraint("Tangent", 2, 2, 3, 1))
sketch7.addConstraint(Sketcher.Constraint("Tangent", 3, 2, 4, 1))
sketch7.addConstraint(Sketcher.Constraint("Tangent", 4, 2, 5, 1))
sketch7.addConstraint(Sketcher.Constraint("Tangent", 5, 2, 0, 1))
sketch7.addConstraint(Sketcher.Constraint("Tangent", 6, 2, 7, 1))
sketch7.addConstraint(Sketcher.Constraint("Tangent", 7, 2, 8, 1))
sketch7.addConstraint(Sketcher.Constraint("Tangent", 8, 2, 9, 1))
sketch7.addConstraint(Sketcher.Constraint("Tangent", 9, 2, 10, 1))
sketch7.addConstraint(Sketcher.Constraint("Tangent", 10, 2, 11, 1))
sketch7.addConstraint(Sketcher.Constraint("Tangent", 11, 2, 6, 1))
sketch7.addConstraint(Sketcher.Constraint("Horizontal", 0))
sketch7.addConstraint(Sketcher.Constraint("Vertical", 2))
sketch7.addConstraint(Sketcher.Constraint("Vertical", 8))
sketch7.addConstraint(Sketcher.Constraint("Horizontal", 10))
sketch7.addConstraint(Sketcher.Constraint("Equal", 1, 3))
sketch7.addConstraint(Sketcher.Constraint("Equal", 3, 5))
sketch7.addConstraint(Sketcher.Constraint("Equal", 5, 7))
sketch7.addConstraint(Sketcher.Constraint("Equal", 7, 9))
sketch7.addConstraint(Sketcher.Constraint("Equal", 9, 11))
sketch7.addConstraint(Sketcher.Constraint("Symmetric", 3, 3, 7, 3, -2))
sketch7.addConstraint(Sketcher.Constraint("Symmetric", 5, 3, 11, 3, -2))
sketch7.addConstraint(Sketcher.Constraint("Radius", 1, Q("10 mm")))
sketch7.addConstraint(Sketcher.Constraint("DistanceX", 1, 3, -1, 1, Q("164 mm")))
sketch7.addConstraint(Sketcher.Constraint("DistanceY", -1, 1, 3, 3, Q("42 mm")))
sketch7.addConstraint(Sketcher.Constraint("DistanceX", 3, 2, -1, 1, Q("158 mm")))
sketch7.addConstraint(Sketcher.Constraint("DistanceX", 0, 2, 0, 1, Q("81.930758 mm")))
sketch7.setExpression("Constraints[23]", "Params.sketch7_radius")
pad5 = body.newObject("PartDesign::Pad", "Pad004")
pad5.Profile = sketch7
pad5.setExpression("Length", "Params.pad5_length")

sketch8 = body.newObject("Sketcher::SketchObject", "Sketch007")
sketch8.AttachmentSupport = (doc.getObject("XY_Plane"), [""])
sketch8.MapMode = "FlatFace"
sketch8.AttachmentOffset = App.Placement(V(0, 0, 50), App.Rotation())
sketch8.addGeometry(Part.LineSegment(V(-82, 109, 0), V(-164, 109, 0)), False)
sketch8.addGeometry(Part.ArcOfCircle(Part.Circle(V(-164, 103, 0), V(0, 0, 1), 6), math.radians(90), math.radians(180)), False)
sketch8.addGeometry(Part.LineSegment(V(-170, 103, 0), V(-170, 42, 0)), False)
sketch8.addGeometry(Part.ArcOfCircle(Part.Circle(V(-164, 42, 0), V(0, 0, 1), 6), math.radians(180), math.radians(307)), False)
sketch8.addGeometry(Part.LineSegment(V(-160, 37, 0), V(-78, 99, 0)), False)
sketch8.addGeometry(Part.ArcOfCircle(Part.Circle(V(-82, 103, 0), V(0, 0, 1), 6), math.radians(-53), math.radians(90)), False)
sketch8.addGeometry(Part.LineSegment(V(170, 42, 0), V(170, 103, 0)), False)
sketch8.addGeometry(Part.ArcOfCircle(Part.Circle(V(164, 103, 0), V(0, 0, 1), 6), math.radians(0), math.radians(90)), False)
sketch8.addGeometry(Part.LineSegment(V(164, 109, 0), V(82, 109, 0)), False)
sketch8.addGeometry(Part.ArcOfCircle(Part.Circle(V(82, 103, 0), V(0, 0, 1), 6), math.radians(90), math.radians(233)), False)
sketch8.addGeometry(Part.LineSegment(V(78, 99, 0), V(160, 37, 0)), False)
sketch8.addGeometry(Part.ArcOfCircle(Part.Circle(V(164, 42, 0), V(0, 0, 1), 6), math.radians(-127), math.radians(0)), False)
sketch8.addConstraint(Sketcher.Constraint("Tangent", 0, 2, 1, 1))
sketch8.addConstraint(Sketcher.Constraint("Tangent", 1, 2, 2, 1))
sketch8.addConstraint(Sketcher.Constraint("Tangent", 2, 2, 3, 1))
sketch8.addConstraint(Sketcher.Constraint("Tangent", 3, 2, 4, 1))
sketch8.addConstraint(Sketcher.Constraint("Tangent", 4, 2, 5, 1))
sketch8.addConstraint(Sketcher.Constraint("Tangent", 5, 2, 0, 1))
sketch8.addConstraint(Sketcher.Constraint("Tangent", 6, 2, 7, 1))
sketch8.addConstraint(Sketcher.Constraint("Tangent", 7, 2, 8, 1))
sketch8.addConstraint(Sketcher.Constraint("Tangent", 8, 2, 9, 1))
sketch8.addConstraint(Sketcher.Constraint("Tangent", 9, 2, 10, 1))
sketch8.addConstraint(Sketcher.Constraint("Tangent", 10, 2, 11, 1))
sketch8.addConstraint(Sketcher.Constraint("Tangent", 11, 2, 6, 1))
sketch8.addConstraint(Sketcher.Constraint("Horizontal", 0))
sketch8.addConstraint(Sketcher.Constraint("Vertical", 2))
sketch8.addConstraint(Sketcher.Constraint("Vertical", 6))
sketch8.addConstraint(Sketcher.Constraint("Horizontal", 8))
sketch8.addConstraint(Sketcher.Constraint("Equal", 1, 3))
sketch8.addConstraint(Sketcher.Constraint("Equal", 3, 5))
sketch8.addConstraint(Sketcher.Constraint("Equal", 5, 7))
sketch8.addConstraint(Sketcher.Constraint("Equal", 7, 9))
sketch8.addConstraint(Sketcher.Constraint("Equal", 9, 11))
sketch8.addConstraint(Sketcher.Constraint("Symmetric", 1, 3, 7, 3, -2))
sketch8.addConstraint(Sketcher.Constraint("Symmetric", 4, 2, 9, 2, -2))
sketch8.addConstraint(Sketcher.Constraint("Radius", 1, Q("6 mm")))
sketch8.addConstraint(Sketcher.Constraint("DistanceX", 1, 3, -1, 1, Q("164 mm")))
sketch8.addConstraint(Sketcher.Constraint("DistanceY", -1, 1, 3, 3, Q("42 mm")))
sketch8.addConstraint(Sketcher.Constraint("DistanceX", 3, 2, -1, 1, Q("160.4 mm")))
sketch8.addConstraint(Sketcher.Constraint("DistanceX", 0, 2, 0, 1, Q("81.930758 mm")))
sketch8.setExpression("Constraints[23]", "Params.sketch8_radius")
pocket3 = body.newObject("PartDesign::Pocket", "Pocket002")
pocket3.Profile = sketch8
pocket3.setExpression("Length", "Params.pocket3_length")

doc.recompute()
